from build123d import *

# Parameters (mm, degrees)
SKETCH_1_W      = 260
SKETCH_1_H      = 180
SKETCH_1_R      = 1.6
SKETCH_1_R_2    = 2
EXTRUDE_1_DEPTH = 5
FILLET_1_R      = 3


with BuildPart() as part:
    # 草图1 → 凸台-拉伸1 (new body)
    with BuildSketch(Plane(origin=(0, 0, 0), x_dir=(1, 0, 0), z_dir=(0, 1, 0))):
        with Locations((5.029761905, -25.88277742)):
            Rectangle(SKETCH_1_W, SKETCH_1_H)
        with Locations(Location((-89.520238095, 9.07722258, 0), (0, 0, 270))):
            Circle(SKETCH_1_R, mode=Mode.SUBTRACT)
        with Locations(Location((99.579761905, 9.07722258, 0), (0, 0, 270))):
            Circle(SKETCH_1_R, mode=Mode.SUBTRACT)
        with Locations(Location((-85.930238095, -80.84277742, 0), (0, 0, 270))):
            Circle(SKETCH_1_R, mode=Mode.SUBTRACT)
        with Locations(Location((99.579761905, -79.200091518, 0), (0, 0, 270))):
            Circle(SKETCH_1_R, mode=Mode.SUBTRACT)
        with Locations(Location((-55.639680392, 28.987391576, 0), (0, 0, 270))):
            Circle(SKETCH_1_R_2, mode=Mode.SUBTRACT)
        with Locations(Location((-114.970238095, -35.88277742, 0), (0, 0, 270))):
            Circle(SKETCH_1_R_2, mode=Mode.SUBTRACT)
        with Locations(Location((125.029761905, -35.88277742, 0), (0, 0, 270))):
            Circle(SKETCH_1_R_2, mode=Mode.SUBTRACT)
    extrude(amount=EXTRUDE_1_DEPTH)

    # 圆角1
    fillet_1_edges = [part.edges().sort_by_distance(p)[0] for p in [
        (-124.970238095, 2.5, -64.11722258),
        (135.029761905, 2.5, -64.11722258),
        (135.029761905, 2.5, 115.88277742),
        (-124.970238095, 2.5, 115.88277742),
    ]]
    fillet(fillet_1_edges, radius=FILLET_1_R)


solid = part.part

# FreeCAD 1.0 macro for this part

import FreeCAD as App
import Part
import Sketcher

V = App.Vector
Q = App.Units.Quantity


def edges_at(feature, points):
    """Names of the edges that pass closest to the given points."""
    edges = feature.Shape.Edges
    near = lambda p: min(range(len(edges)), key=lambda i: edges[i].distToShape(Part.Vertex(*p))[0])
    return sorted({f"Edge{near(p) + 1}" for p in points})


def add_polygon(sketch, points):
    """Adds a closed chain of lines whose ends are joined by coincident constraints."""
    first, n = sketch.GeometryCount, len(points)
    for a, b in zip(points, points[1:] + points[:1]):
        sketch.addGeometry(Part.LineSegment(App.Vector(*a, 0), App.Vector(*b, 0)), False)
    for i in range(n):
        sketch.addConstraint(Sketcher.Constraint("Coincident", first + i, 2, first + (i + 1) % n, 1))

doc = App.newDocument("Part")
body = doc.addObject("PartDesign::Body", "Body")

sketch1 = doc.addObject("Sketcher::SketchObject", "Sketch")
body.addObject(sketch1)
sketch1.AttachmentSupport = (doc.XZ_Plane, [""])
sketch1.MapMode = "FlatFace"
add_polygon(sketch1, [(-124.970238, -64.117223), (-124.970238, 115.882777), (135.029762, 115.882777), (135.029762, -64.117223)])
sketch1.addGeometry(Part.Circle(V(-85.930238, 80.842777, 0), V(0, 0, 1), 1.6), False)
sketch1.addGeometry(Part.Circle(V(-114.970238, 35.882777, 0), V(0, 0, 1), 2), False)
sketch1.addGeometry(Part.Circle(V(99.579762, 79.200092, 0), V(0, 0, 1), 1.6), False)
sketch1.addGeometry(Part.Circle(V(125.029762, 35.882777, 0), V(0, 0, 1), 2), False)
sketch1.addGeometry(Part.Circle(V(-89.520238, -9.077223, 0), V(0, 0, 1), 1.6), False)
sketch1.addGeometry(Part.Circle(V(-55.63968, -28.987392, 0), V(0, 0, 1), 2), False)
sketch1.addGeometry(Part.Circle(V(99.579762, -9.077223, 0), V(0, 0, 1), 1.6), False)
sketch1.addConstraint([
    Sketcher.Constraint("Vertical", 0),
    Sketcher.Constraint("Horizontal", 1),
    Sketcher.Constraint("Vertical", 2),
    Sketcher.Constraint("Horizontal", 3),
    Sketcher.Constraint("Equal", 4, 6),
    Sketcher.Constraint("Equal", 5, 7),
    Sketcher.Constraint("Equal", 6, 8),
    Sketcher.Constraint("Equal", 7, 9),
    Sketcher.Constraint("Equal", 8, 10),
    Sketcher.Constraint("Horizontal", 5, 3, 7, 3),
    Sketcher.Constraint("Horizontal", 8, 3, 10, 3),
    Sketcher.Constraint("Vertical", 6, 3, 10, 3),
    Sketcher.Constraint("Diameter", 5, Q("4 mm")),
    Sketcher.Constraint("Diameter", 4, Q("3.2 mm")),
    Sketcher.Constraint("DistanceX", 1, 1, 1, 2, Q("260 mm")),
    Sketcher.Constraint("DistanceY", 0, 1, 0, 2, Q("180 mm")),
    Sketcher.Constraint("DistanceX", 5, 3, 7, 3, Q("240 mm")),
    Sketcher.Constraint("DistanceX", 0, 2, 5, 3, Q("10 mm")),
    Sketcher.Constraint("DistanceY", 5, 3, 0, 2, Q("80 mm")),
    Sketcher.Constraint("DistanceX", 8, 3, 6, 3, Q("189.1 mm")),
    Sketcher.Constraint("DistanceX", 5, 3, 4, 3, Q("29.04 mm")),
    Sketcher.Constraint("DistanceY", 5, 3, 4, 3, Q("44.96 mm")),
    Sketcher.Constraint("DistanceX", 4, 3, 6, 3, Q("185.51 mm")),
    Sketcher.Constraint("DistanceY", 8, 3, 5, 3, Q("44.96 mm")),
    Sketcher.Constraint("DistanceX", 4, 3, -1, 1, Q("85.930238 mm")),
    Sketcher.Constraint("DistanceY", -1, 1, 6, 3, Q("79.200092 mm")),
    Sketcher.Constraint("DistanceX", 9, 3, -1, 1, Q("55.63968 mm")),
    Sketcher.Constraint("DistanceY", 9, 3, -1, 1, Q("28.987392 mm")),
    Sketcher.Constraint("DistanceY", 9, 3, 8, 3, Q("19.910169 mm")),
])
pad1 = doc.addObject("PartDesign::Pad", "Pad")
body.addObject(pad1)
pad1.Profile = sketch1
pad1.Length = 5
pad1.Reversed = True
doc.recompute()

fillet = doc.addObject("PartDesign::Fillet", "Fillet")
body.addObject(fillet)
fillet.Base = (pad1, edges_at(pad1, [
    (-124.97, 2.5, -64.117),
    (135.03, 2.5, -64.117),
    (135.03, 2.5, 115.883),
    (-124.97, 2.5, 115.883),
]))
fillet.Radius = 3

doc.recompute()
